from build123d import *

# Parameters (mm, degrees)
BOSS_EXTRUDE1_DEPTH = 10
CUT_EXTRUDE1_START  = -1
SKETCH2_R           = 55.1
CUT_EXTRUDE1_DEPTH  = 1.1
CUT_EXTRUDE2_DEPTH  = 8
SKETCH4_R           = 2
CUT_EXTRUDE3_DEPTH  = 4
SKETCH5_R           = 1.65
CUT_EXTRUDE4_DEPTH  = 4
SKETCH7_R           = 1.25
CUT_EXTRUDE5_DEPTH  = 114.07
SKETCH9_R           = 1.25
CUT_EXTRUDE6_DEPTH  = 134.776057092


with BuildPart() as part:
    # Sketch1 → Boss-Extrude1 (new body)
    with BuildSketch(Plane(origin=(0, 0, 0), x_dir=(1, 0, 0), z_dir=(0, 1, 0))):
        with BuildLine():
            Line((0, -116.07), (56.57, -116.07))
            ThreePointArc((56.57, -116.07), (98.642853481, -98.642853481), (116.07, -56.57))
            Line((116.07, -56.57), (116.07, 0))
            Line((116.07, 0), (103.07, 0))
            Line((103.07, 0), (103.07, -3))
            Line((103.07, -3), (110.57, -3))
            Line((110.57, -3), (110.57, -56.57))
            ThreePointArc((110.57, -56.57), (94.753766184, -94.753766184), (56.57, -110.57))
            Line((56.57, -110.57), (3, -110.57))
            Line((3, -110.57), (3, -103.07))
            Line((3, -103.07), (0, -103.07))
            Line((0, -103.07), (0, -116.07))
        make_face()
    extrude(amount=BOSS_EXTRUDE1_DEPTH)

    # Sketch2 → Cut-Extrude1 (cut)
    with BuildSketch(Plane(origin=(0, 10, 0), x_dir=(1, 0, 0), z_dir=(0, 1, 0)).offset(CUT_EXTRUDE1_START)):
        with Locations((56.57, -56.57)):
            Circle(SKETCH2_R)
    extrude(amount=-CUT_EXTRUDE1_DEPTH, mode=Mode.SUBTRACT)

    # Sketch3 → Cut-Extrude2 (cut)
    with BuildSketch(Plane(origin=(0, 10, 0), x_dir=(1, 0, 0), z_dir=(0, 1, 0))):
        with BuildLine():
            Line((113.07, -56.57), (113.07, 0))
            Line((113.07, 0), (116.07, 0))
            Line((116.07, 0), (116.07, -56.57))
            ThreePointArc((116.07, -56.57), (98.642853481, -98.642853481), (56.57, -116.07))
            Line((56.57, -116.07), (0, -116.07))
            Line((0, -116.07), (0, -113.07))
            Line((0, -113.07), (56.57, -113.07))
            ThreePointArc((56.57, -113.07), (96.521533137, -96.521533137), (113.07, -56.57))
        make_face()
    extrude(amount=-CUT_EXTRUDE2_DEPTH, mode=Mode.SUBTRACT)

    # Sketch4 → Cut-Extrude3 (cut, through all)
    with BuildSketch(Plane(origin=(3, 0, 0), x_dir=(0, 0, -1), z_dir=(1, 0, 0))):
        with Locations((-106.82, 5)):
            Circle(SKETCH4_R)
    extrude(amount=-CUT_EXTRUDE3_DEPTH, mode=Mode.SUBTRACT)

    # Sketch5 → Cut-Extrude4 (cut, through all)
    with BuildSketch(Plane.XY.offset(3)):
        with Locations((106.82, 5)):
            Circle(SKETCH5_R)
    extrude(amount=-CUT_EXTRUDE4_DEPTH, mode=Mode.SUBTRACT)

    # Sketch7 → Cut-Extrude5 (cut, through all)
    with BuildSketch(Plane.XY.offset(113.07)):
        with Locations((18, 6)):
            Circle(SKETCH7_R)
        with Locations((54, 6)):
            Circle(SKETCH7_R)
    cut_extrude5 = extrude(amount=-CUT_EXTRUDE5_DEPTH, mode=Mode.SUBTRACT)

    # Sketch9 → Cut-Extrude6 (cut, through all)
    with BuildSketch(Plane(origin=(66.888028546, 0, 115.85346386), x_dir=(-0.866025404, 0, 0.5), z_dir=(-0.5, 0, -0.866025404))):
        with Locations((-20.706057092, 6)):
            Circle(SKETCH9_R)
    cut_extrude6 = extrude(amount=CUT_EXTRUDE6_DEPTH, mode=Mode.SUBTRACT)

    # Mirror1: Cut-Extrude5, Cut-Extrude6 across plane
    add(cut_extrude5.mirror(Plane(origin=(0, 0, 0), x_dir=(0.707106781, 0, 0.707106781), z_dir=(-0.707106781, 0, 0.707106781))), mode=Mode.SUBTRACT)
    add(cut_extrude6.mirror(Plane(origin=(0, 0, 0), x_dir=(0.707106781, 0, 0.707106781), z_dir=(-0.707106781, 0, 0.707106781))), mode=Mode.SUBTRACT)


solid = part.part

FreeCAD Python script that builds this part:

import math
import FreeCAD as App
import Part
import Sketcher

V = App.Vector

doc = App.newDocument("Part")
body = doc.addObject("PartDesign::Body", "Body")

# Sketch on XZ plane
sketch1 = doc.addObject("Sketcher::SketchObject", "Sketch")
body.addObject(sketch1)
sketch1.AttachmentSupport = (doc.XZ_Plane, [""])
sketch1.MapMode = "FlatFace"
sketch1.addGeometry(Part.LineSegment(V(0, 116.07, 0), V(56.57, 116.07, 0)), False)
sketch1.addGeometry(Part.ArcOfCircle(Part.Circle(V(56.57, 56.57, 0), V(0, 0, 1), 59.5), math.radians(0), math.radians(90)), False)
sketch1.addGeometry(Part.LineSegment(V(116.07, 56.57, 0), V(116.07, 0, 0)), False)
sketch1.addGeometry(Part.LineSegment(V(116.07, 0, 0), V(103.07, 0, 0)), False)
sketch1.addGeometry(Part.LineSegment(V(103.07, 0, 0), V(103.07, 3, 0)), False)
sketch1.addGeometry(Part.LineSegment(V(103.07, 3, 0), V(110.57, 3, 0)), False)
sketch1.addGeometry(Part.LineSegment(V(110.57, 3, 0), V(110.57, 56.57, 0)), False)
sketch1.addGeometry(Part.ArcOfCircle(Part.Circle(V(56.57, 56.57, 0), V(0, 0, 1), 54), math.radians(0), math.radians(90)), False)
sketch1.addGeometry(Part.LineSegment(V(56.57, 110.57, 0), V(3, 110.57, 0)), False)
sketch1.addGeometry(Part.LineSegment(V(3, 110.57, 0), V(3, 103.07, 0)), False)
sketch1.addGeometry(Part.LineSegment(V(3, 103.07, 0), V(0, 103.07, 0)), False)
sketch1.addGeometry(Part.LineSegment(V(0, 103.07, 0), V(0, 116.07, 0)), False)
sketch1.addConstraint(Sketcher.Constraint("Tangent", 0, 2, 1, 2))
sketch1.addConstraint(Sketcher.Constraint("Tangent", 1, 1, 2, 1))
sketch1.addConstraint(Sketcher.Constraint("Coincident", 2, 2, 3, 1))
sketch1.addConstraint(Sketcher.Constraint("Coincident", 3, 2, 4, 1))
sketch1.addConstraint(Sketcher.Constraint("Coincident", 4, 2, 5, 1))
sketch1.addConstraint(Sketcher.Constraint("Coincident", 5, 2, 6, 1))
sketch1.addConstraint(Sketcher.Constraint("Tangent", 6, 2, 7, 1))
sketch1.addConstraint(Sketcher.Constraint("Tangent", 7, 2, 8, 1))
sketch1.addConstraint(Sketcher.Constraint("Coincident", 8, 2, 9, 1))
sketch1.addConstraint(Sketcher.Constraint("Coincident", 9, 2, 10, 1))
sketch1.addConstraint(Sketcher.Constraint("Coincident", 10, 2, 11, 1))
sketch1.addConstraint(Sketcher.Constraint("Coincident", 11, 2, 0, 1))
sketch1.addConstraint(Sketcher.Constraint("Horizontal", 0))
sketch1.addConstraint(Sketcher.Constraint("Vertical", 2))
sketch1.addConstraint(Sketcher.Constraint("Horizontal", 3))
sketch1.addConstraint(Sketcher.Constraint("Vertical", 4))
sketch1.addConstraint(Sketcher.Constraint("Horizontal", 5))
sketch1.addConstraint(Sketcher.Constraint("Vertical", 6))
sketch1.addConstraint(Sketcher.Constraint("Horizontal", 8))
sketch1.addConstraint(Sketcher.Constraint("Vertical", 9))
sketch1.addConstraint(Sketcher.Constraint("Horizontal", 10))
sketch1.addConstraint(Sketcher.Constraint("Vertical", 11))
sketch1.addConstraint(Sketcher.Constraint("Coincident", 7, 3, 1, 3))
sketch1.addConstraint(Sketcher.Constraint("PointOnObject", 2, 2, -1))
sketch1.addConstraint(Sketcher.Constraint("PointOnObject", 10, 2, -2))
sketch1.addConstraint(Sketcher.Constraint("Equal", 0, 2))
sketch1.addConstraint(Sketcher.Constraint("Equal", 10, 4))
sketch1.addConstraint(Sketcher.Constraint("Equal", 5, 9))
sketch1.addConstraint(Sketcher.Constraint("Radius", 7, 54.0))
sketch1.addConstraint(Sketcher.Constraint("Radius", 1, 59.5))
sketch1.addConstraint(Sketcher.Constraint("DistanceX", 3, 2, 3, 1, 13.0))
sketch1.addConstraint(Sketcher.Constraint("DistanceX", 10, 2, 10, 1, 3.0))
sketch1.addConstraint(Sketcher.Constraint("DistanceX", 0, 1, 0, 2, 56.57))
pad1 = doc.addObject("PartDesign::Pad", "Pad")
body.addObject(pad1)
pad1.Profile = sketch1
pad1.Length = 10
pad1.Reversed = True

# Sketch on XZ plane
sketch2 = doc.addObject("Sketcher::SketchObject", "Sketch001")
body.addObject(sketch2)
sketch2.AttachmentSupport = (doc.XZ_Plane, [""])
sketch2.MapMode = "FlatFace"
sketch2.AttachmentOffset = App.Placement(V(0, 0, -9), App.Rotation())
sketch2.addGeometry(Part.Circle(V(56.57, 56.57, 0), V(0, 0, 1), 55.1), False)
sketch2.addConstraint(Sketcher.Constraint("Diameter", 0, 110.2))
sketch2.addConstraint(Sketcher.Constraint("DistanceX", -1, 1, 0, 3, 56.57))
sketch2.addConstraint(Sketcher.Constraint("DistanceY", -1, 1, 0, 3, 56.57))
pocket1 = doc.addObject("PartDesign::Pocket", "Pocket")
body.addObject(pocket1)
pocket1.Profile = sketch2
pocket1.Length = 1.1
pocket1.Reversed = True

# Sketch on XZ plane
sketch3 = doc.addObject("Sketcher::SketchObject", "Sketch002")
body.addObject(sketch3)
sketch3.AttachmentSupport = (doc.XZ_Plane, [""])
sketch3.MapMode = "FlatFace"
sketch3.AttachmentOffset = App.Placement(V(0, 0, -10), App.Rotation())
sketch3.addGeometry(Part.LineSegment(V(113.07, 0, 0), V(113.07, 56.57, 0)), False)
sketch3.addGeometry(Part.ArcOfCircle(Part.Circle(V(56.57, 56.57, 0), V(0, 0, 1), 56.5), math.radians(0), math.radians(90)), False)
sketch3.addGeometry(Part.LineSegment(V(56.57, 113.07, 0), V(0, 113.07, 0)), False)
sketch3.addGeometry(Part.LineSegment(V(0, 113.07, 0), V(0, 116.07, 0)), False)
sketch3.addGeometry(Part.LineSegment(V(0, 116.07, 0), V(56.57, 116.07, 0)), False)
sketch3.addGeometry(Part.ArcOfCircle(Part.Circle(V(56.57, 56.57, 0), V(0, 0, 1), 59.5), math.radians(0), math.radians(90)), False)
sketch3.addGeometry(Part.LineSegment(V(116.07, 56.57, 0), V(116.07, 0, 0)), False)
sketch3.addGeometry(Part.LineSegment(V(116.07, 0, 0), V(113.07, 0, 0)), False)
sketch3.addConstraint(Sketcher.Constraint("Tangent", 0, 2, 1, 1))
sketch3.addConstraint(Sketcher.Constraint("Tangent", 1, 2, 2, 1))
sketch3.addConstraint(Sketcher.Constraint("Coincident", 2, 2, 3, 1))
sketch3.addConstraint(Sketcher.Constraint("Coincident", 3, 2, 4, 1))
sketch3.addConstraint(Sketcher.Constraint("Tangent", 4, 2, 5, 2))
sketch3.addConstraint(Sketcher.Constraint("Tangent", 5, 1, 6, 1))
sketch3.addConstraint(Sketcher.Constraint("Coincident", 6, 2, 7, 1))
sketch3.addConstraint(Sketcher.Constraint("Coincident", 7, 2, 0, 1))
sketch3.addConstraint(Sketcher.Constraint("Vertical", 0))
sketch3.addConstraint(Sketcher.Constraint("Horizontal", 2))
sketch3.addConstraint(Sketcher.Constraint("Vertical", 3))
sketch3.addConstraint(Sketcher.Constraint("Horizontal", 4))
sketch3.addConstraint(Sketcher.Constraint("Vertical", 6))
sketch3.addConstraint(Sketcher.Constraint("Horizontal", 7))
sketch3.addConstraint(Sketcher.Constraint("Coincident", 5, 3, 1, 3))
sketch3.addConstraint(Sketcher.Constraint("PointOnObject", 2, 2, -2))
sketch3.addConstraint(Sketcher.Constraint("PointOnObject", 6, 2, -1))
sketch3.addConstraint(Sketcher.Constraint("Equal", 4, 0))
sketch3.addConstraint(Sketcher.Constraint("Radius", 1, 56.5))
sketch3.addConstraint(Sketcher.Constraint("Radius", 5, 59.5))
sketch3.addConstraint(Sketcher.Constraint("DistanceX", 2, 2, 2, 1, 56.57))
pocket2 = doc.addObject("PartDesign::Pocket", "Pocket001")
body.addObject(pocket2)
pocket2.Profile = sketch3
pocket2.Length = 8
pocket2.Reversed = True

# Sketch on YZ plane
sketch4 = doc.addObject("Sketcher::SketchObject", "Sketch003")
body.addObject(sketch4)
sketch4.AttachmentSupport = (doc.YZ_Plane, [""])
sketch4.MapMode = "FlatFace"
sketch4.AttachmentOffset = App.Placement(V(0, 0, 3), App.Rotation())
sketch4.addGeometry(Part.Circle(V(5, 106.82, 0), V(0, 0, 1), 2), False)
sketch4.addConstraint(Sketcher.Constraint("Diameter", 0, 4.0))
sketch4.addConstraint(Sketcher.Constraint("DistanceX", -1, 1, 0, 3, 5.0))
sketch4.addConstraint(Sketcher.Constraint("DistanceY", -1, 1, 0, 3, 106.82))
pocket3 = doc.addObject("PartDesign::Pocket", "Pocket002")
body.addObject(pocket3)
pocket3.Profile = sketch4
pocket3.Type = "ThroughAll"

# Sketch on XY plane
sketch5 = doc.addObject("Sketcher::SketchObject", "Sketch004")
body.addObject(sketch5)
sketch5.AttachmentSupport = (doc.XY_Plane, [""])
sketch5.MapMode = "FlatFace"
sketch5.AttachmentOffset = App.Placement(V(0, 0, 3), App.Rotation())
sketch5.addGeometry(Part.Circle(V(106.82, 5, 0), V(0, 0, 1), 1.65), False)
sketch5.addConstraint(Sketcher.Constraint("Diameter", 0, 3.3))
sketch5.addConstraint(Sketcher.Constraint("DistanceY", -1, 1, 0, 3, 5.0))
sketch5.addConstraint(Sketcher.Constraint("DistanceX", -1, 1, 0, 3, 106.82))
pocket4 = doc.addObject("PartDesign::Pocket", "Pocket003")
body.addObject(pocket4)
pocket4.Profile = sketch5
pocket4.Type = "ThroughAll"

# Sketch on XY plane
sketch6 = doc.addObject("Sketcher::SketchObject", "Sketch005")
body.addObject(sketch6)
sketch6.AttachmentSupport = (doc.XY_Plane, [""])
sketch6.MapMode = "FlatFace"
sketch6.AttachmentOffset = App.Placement(V(0, 0, 113.07), App.Rotation())
sketch6.addGeometry(Part.Circle(V(18, 6, 0), V(0, 0, 1), 1.25), False)
sketch6.addGeometry(Part.Circle(V(54, 6, 0), V(0, 0, 1), 1.25), False)
sketch6.addConstraint(Sketcher.Constraint("Equal", 0, 1))
sketch6.addConstraint(Sketcher.Constraint("Horizontal", 0, 3, 1, 3))
sketch6.addConstraint(Sketcher.Constraint("Diameter", 0, 2.5))
sketch6.addConstraint(Sketcher.Constraint("DistanceX", -1, 1, 0, 3, 18.0))
sketch6.addConstraint(Sketcher.Constraint("DistanceY", -1, 1, 0, 3, 6.0))
sketch6.addConstraint(Sketcher.Constraint("DistanceX", -1, 1, 1, 3, 54.0))
pocket5 = doc.addObject("PartDesign::Pocket", "Pocket004")
body.addObject(pocket5)
pocket5.Profile = sketch6
pocket5.Type = "ThroughAll"

# Sketch on an angled plane
sketch7 = doc.addObject("Sketcher::SketchObject", "Sketch006")
body.addObject(sketch7)
sketch7.Placement = App.Placement(V(66.888029, 0, 115.853464), App.Rotation(V(-0.866025404, 0, 0.5), V(0, 1, 0), V(-0.5, 0, -0.866025404), "ZXY"))
sketch7.addGeometry(Part.Circle(V(-20.706057, 6, 0), V(0, 0, 1), 1.25), False)
sketch7.addConstraint(Sketcher.Constraint("Diameter", 0, 2.5))
sketch7.addConstraint(Sketcher.Constraint("DistanceY", -1, 1, 0, 3, 6.0))
sketch7.addConstraint(Sketcher.Constraint("DistanceX", 0, 3, -1, 1, 20.706057))
pocket6 = doc.addObject("PartDesign::Pocket", "Pocket005")
body.addObject(pocket6)
pocket6.Profile = sketch7
pocket6.Type = "ThroughAll"
pocket6.Reversed = True
doc.recompute()

datumplane = doc.addObject("PartDesign::Plane", "DatumPlane")
body.addObject(datumplane)
datumplane.Placement = App.Placement(V(0, 0, 0), App.Rotation(V(-0.707106781, 0, -0.707106781), V(0, -1, 0), V(-0.707106781, 0, 0.707106781), "ZXY"))
mirrored = doc.addObject("PartDesign::Mirrored", "Mirrored")
body.addObject(mirrored)
mirrored.Originals = [pocket5, pocket6]
mirrored.MirrorPlane = (datumplane, [""])
body.Tip = mirrored

doc.recompute()
